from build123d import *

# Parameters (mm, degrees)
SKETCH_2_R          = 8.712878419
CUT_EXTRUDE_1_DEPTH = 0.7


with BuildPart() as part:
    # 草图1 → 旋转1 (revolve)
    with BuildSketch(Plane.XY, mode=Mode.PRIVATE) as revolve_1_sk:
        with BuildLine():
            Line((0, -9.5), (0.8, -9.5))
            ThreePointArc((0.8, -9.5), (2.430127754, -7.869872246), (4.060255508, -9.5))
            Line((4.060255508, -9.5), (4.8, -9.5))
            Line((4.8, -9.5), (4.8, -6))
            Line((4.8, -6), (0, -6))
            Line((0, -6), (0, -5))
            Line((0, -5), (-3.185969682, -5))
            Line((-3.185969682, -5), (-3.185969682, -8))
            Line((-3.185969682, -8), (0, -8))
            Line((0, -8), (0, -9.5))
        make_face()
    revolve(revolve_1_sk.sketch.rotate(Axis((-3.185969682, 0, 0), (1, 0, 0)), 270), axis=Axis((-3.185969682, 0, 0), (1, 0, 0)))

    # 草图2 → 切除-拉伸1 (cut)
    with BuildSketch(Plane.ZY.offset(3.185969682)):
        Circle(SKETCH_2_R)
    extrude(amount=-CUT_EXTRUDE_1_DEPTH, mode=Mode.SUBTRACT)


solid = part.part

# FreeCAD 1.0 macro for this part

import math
import FreeCAD as App
import Part
import Sketcher
Q = App.Units.Quantity

doc = App.newDocument("Part")
body = doc.addObject("PartDesign::Body", "Body")

sketch1 = body.newObject("Sketcher::SketchObject", "Sketch")
sketch1.AttachmentSupport = (doc.getObject("XY_Plane"), [""])
sketch1.MapMode = "FlatFace"
sketch1.addGeometry([
    Part.LineSegment(App.Vector(0, -9.5, 0), App.Vector(0.8, -9.5, 0)),
    Part.ArcOfCircle(Part.Circle(App.Vector(2.4, -9.5, 0), App.Vector(0, 0, 1), 1.6), math.radians(0), math.radians(180)),
    Part.LineSegment(App.Vector(4.1, -9.5, 0), App.Vector(4.8, -9.5, 0)),
    Part.LineSegment(App.Vector(4.8, -9.5, 0), App.Vector(4.8, -6, 0)),
    Part.LineSegment(App.Vector(4.8, -6, 0), App.Vector(0, -6, 0)),
    Part.LineSegment(App.Vector(0, -6, 0), App.Vector(0, -5, 0)),
    Part.LineSegment(App.Vector(0, -5, 0), App.Vector(-3.2, -5, 0)),
    Part.LineSegment(App.Vector(-3.2, -5, 0), App.Vector(-3.2, -8, 0)),
    Part.LineSegment(App.Vector(-3.2, -8, 0), App.Vector(0, -8, 0)),
    Part.LineSegment(App.Vector(0, -8, 0), App.Vector(0, -9.5, 0)),
], False)
sketch1.addConstraint([
    Sketcher.Constraint("Coincident", 0, 2, 1, 2),
    Sketcher.Constraint("Coincident", 1, 1, 2, 1),
    Sketcher.Constraint("Coincident", 2, 2, 3, 1),
    Sketcher.Constraint("Coincident", 3, 2, 4, 1),
    Sketcher.Constraint("Coincident", 4, 2, 5, 1),
    Sketcher.Constraint("Coincident", 5, 2, 6, 1),
    Sketcher.Constraint("Coincident", 6, 2, 7, 1),
    Sketcher.Constraint("Coincident", 7, 2, 8, 1),
    Sketcher.Constraint("Coincident", 8, 2, 9, 1),
    Sketcher.Constraint("Coincident", 9, 2, 0, 1),
    Sketcher.Constraint("Horizontal", 0),
    Sketcher.Constraint("Horizontal", 2),
    Sketcher.Constraint("Vertical", 3),
    Sketcher.Constraint("Horizontal", 4),
    Sketcher.Constraint("Vertical", 5),
    Sketcher.Constraint("Horizontal", 6),
    Sketcher.Constraint("Vertical", 7),
    Sketcher.Constraint("Horizontal", 8),
    Sketcher.Constraint("Vertical", 9),
    Sketcher.Constraint("PointOnObject", 4, 2, -2),
    Sketcher.Constraint("PointOnObject", 8, 2, -2),
    Sketcher.Constraint("Horizontal", 1, 3, 0, 2),
    Sketcher.Constraint("Horizontal", 0, 2, 1, 1),
    Sketcher.Constraint("DistanceY", 5, 1, 5, 2, Q("1 mm")),
    Sketcher.Constraint("DistanceY", 7, 2, 7, 1, Q("3 mm")),
    Sketcher.Constraint("DistanceX", 0, 1, 0, 2, Q("0.8 mm")),
    Sketcher.Constraint("DistanceX", 4, 2, 4, 1, Q("4.8 mm")),
    Sketcher.Constraint("DistanceY", 3, 1, 3, 2, Q("3.5 mm")),
    Sketcher.Constraint("DistanceY", 3, 2, -1, 1, Q("6 mm")),
    Sketcher.Constraint("Radius", 1, Q("1.630128 mm")),
    Sketcher.Constraint("DistanceX", 6, 2, 6, 1, Q("3.18597 mm")),
])
revolution = body.newObject("PartDesign::Revolution", "Revolution")
revolution.Profile = sketch1
revolution.ReferenceAxis = (sketch1, ["H_Axis"])
revolution.Angle = 360

sketch2 = body.newObject("Sketcher::SketchObject", "Sketch001")
sketch2.AttachmentSupport = (doc.getObject("YZ_Plane"), [""])
sketch2.MapMode = "FlatFace"
sketch2.AttachmentOffset = App.Placement(App.Vector(0, 0, -3.18597), App.Rotation())
sketch2.addGeometry(Part.Circle(App.Vector(0, 0, 0), App.Vector(0, 0, 1), 9), False)
sketch2.addConstraint([
    Sketcher.Constraint("Coincident", 0, 3, -1, 1),
    Sketcher.Constraint("Diameter", 0, Q("17.425757 mm")),
])
pocket1 = body.newObject("PartDesign::Pocket", "Pocket")
pocket1.Profile = sketch2
pocket1.Length = 0.7
pocket1.Reversed = True

doc.recompute()
